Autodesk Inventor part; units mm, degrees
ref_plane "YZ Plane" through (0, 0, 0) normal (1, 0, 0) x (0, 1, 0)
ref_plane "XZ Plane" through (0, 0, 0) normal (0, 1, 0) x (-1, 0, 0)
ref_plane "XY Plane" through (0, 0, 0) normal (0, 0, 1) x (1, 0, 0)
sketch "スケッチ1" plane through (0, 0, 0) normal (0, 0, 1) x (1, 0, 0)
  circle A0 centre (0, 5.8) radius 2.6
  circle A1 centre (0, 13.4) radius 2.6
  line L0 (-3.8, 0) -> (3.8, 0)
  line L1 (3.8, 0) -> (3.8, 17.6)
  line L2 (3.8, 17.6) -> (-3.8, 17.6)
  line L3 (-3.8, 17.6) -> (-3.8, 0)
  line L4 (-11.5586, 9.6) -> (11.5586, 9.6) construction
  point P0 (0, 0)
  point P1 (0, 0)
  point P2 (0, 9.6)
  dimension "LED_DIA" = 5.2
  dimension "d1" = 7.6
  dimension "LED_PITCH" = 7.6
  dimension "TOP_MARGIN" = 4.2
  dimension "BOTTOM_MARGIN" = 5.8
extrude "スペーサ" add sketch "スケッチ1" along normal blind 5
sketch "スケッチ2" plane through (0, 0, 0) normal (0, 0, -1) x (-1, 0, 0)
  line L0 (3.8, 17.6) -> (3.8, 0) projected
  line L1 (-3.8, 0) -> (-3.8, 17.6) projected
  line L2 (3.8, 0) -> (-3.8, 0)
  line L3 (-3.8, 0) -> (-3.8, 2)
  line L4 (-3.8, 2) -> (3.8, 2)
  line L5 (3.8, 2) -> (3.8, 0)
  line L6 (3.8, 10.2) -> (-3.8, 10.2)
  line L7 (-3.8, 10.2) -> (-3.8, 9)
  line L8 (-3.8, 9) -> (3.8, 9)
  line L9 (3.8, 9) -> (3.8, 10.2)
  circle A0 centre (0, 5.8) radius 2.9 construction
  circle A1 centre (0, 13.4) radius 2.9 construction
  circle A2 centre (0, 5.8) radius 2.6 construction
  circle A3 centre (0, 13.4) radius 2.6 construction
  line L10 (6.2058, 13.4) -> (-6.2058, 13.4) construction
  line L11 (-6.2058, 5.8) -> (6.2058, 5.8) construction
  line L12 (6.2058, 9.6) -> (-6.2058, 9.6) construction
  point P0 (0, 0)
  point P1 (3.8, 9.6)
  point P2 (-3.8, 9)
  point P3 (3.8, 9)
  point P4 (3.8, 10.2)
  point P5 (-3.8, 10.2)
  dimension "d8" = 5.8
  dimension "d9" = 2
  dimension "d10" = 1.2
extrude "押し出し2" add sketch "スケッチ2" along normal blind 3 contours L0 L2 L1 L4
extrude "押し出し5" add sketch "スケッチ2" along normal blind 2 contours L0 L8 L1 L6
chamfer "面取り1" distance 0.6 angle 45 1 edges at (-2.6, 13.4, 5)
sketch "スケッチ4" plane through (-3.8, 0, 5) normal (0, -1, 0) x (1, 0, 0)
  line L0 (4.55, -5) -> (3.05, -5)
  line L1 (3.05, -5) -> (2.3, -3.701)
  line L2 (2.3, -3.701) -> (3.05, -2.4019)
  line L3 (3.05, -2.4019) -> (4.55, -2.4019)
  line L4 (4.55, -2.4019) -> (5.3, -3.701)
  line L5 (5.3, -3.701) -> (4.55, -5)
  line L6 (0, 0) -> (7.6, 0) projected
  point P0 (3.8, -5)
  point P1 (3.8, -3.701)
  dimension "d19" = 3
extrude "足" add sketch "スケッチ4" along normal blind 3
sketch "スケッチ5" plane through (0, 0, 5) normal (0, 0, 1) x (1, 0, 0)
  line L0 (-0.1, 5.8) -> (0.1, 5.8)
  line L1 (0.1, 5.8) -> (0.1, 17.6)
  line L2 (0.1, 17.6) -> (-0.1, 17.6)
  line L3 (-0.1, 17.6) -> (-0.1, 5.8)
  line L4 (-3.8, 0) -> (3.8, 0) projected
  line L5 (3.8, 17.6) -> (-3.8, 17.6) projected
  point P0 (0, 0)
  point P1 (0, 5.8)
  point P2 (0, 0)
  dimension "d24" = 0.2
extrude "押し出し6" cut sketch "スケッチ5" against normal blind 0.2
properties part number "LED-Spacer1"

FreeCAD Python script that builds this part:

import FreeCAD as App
import Part
import Sketcher

V = App.Vector
Q = App.Units.Quantity


def edges_at(feature, points):
    """Names of the edges that pass closest to the given points."""
    edges = feature.Shape.Edges
    near = lambda p: min(range(len(edges)), key=lambda i: edges[i].distToShape(Part.Vertex(*p))[0])
    return sorted({f"Edge{near(p) + 1}" for p in points})


def add_polygon(sketch, points):
    """Adds a closed chain of lines whose ends are joined by coincident constraints."""
    first, n = sketch.GeometryCount, len(points)
    for a, b in zip(points, points[1:] + points[:1]):
        sketch.addGeometry(Part.LineSegment(App.Vector(*a, 0), App.Vector(*b, 0)), False)
    for i in range(n):
        sketch.addConstraint(Sketcher.Constraint("Coincident", first + i, 2, first + (i + 1) % n, 1))

doc = App.newDocument("Part")
body = doc.addObject("PartDesign::Body", "Body")

# Sketch on XY plane
sketch1 = body.newObject("Sketcher::SketchObject", "Sketch")
sketch1.AttachmentSupport = (doc.getObject("XY_Plane"), [""])
sketch1.MapMode = "FlatFace"
add_polygon(sketch1, [(-3.8, 17.6), (-3.8, 0), (3.8, 0), (3.8, 17.6)])  # lines 0-3
sketch1.addGeometry(Part.Circle(V(0, 5.8, 0), V(0, 0, 1), 2.6), False)  # 4
sketch1.addGeometry(Part.Circle(V(0, 13.4, 0), V(0, 0, 1), 2.6), False)  # 5
sketch1.addConstraint([
    Sketcher.Constraint("Vertical", 0),
    Sketcher.Constraint("Horizontal", 1),
    Sketcher.Constraint("Vertical", 2),
    Sketcher.Constraint("Horizontal", 3),
    Sketcher.Constraint("Equal", 4, 5),
    Sketcher.Constraint("Symmetric", 0, 2, 1, 2, -1, 1),
    Sketcher.Constraint("PointOnObject", 4, 3, -2),
    Sketcher.Constraint("PointOnObject", 5, 3, -2),
    Sketcher.Constraint("Diameter", 4, 5.2),
    Sketcher.Constraint("DistanceX", 1, 1, 1, 2, 7.6),
    Sketcher.Constraint("DistanceY", -1, 1, 4, 3, 5.8),
    Sketcher.Constraint("DistanceY", 4, 3, 5, 3, 7.6),
    Sketcher.Constraint("DistanceY", 5, 3, 2, 2, 4.2),
])
pad1 = body.newObject("PartDesign::Pad", "Pad")
pad1.Profile = sketch1
pad1.Length = 5

# Sketch on XY plane
sketch2 = body.newObject("Sketcher::SketchObject", "Sketch001")
sketch2.AttachmentSupport = (doc.getObject("XY_Plane"), [""])
sketch2.MapMode = "FlatFace"
add_polygon(sketch2, [(-3.8, 0), (-3.8, 2), (3.8, 2), (3.8, 0)])  # lines 0-3
sketch2.addConstraint([
    Sketcher.Constraint("Vertical", 0),
    Sketcher.Constraint("Horizontal", 1),
    Sketcher.Constraint("Vertical", 2),
    Sketcher.Constraint("Horizontal", 3),
    Sketcher.Constraint("Symmetric", 2, 2, 3, 2, -1, 1),
    Sketcher.Constraint("DistanceY", 0, 1, 0, 2, 2.0),
    Sketcher.Constraint("DistanceX", 1, 1, 1, 2, 7.6),
])
pad2 = body.newObject("PartDesign::Pad", "Pad001")
pad2.Profile = sketch2
pad2.Length = 3
pad2.Reversed = True

# Sketch on XY plane
sketch3 = body.newObject("Sketcher::SketchObject", "Sketch002")
sketch3.AttachmentSupport = (doc.getObject("XY_Plane"), [""])
sketch3.MapMode = "FlatFace"
add_polygon(sketch3, [(-3.8, 9), (-3.8, 10.2), (3.8, 10.2), (3.8, 9)])  # lines 0-3
sketch3.addConstraint([
    Sketcher.Constraint("Vertical", 0),
    Sketcher.Constraint("Horizontal", 1),
    Sketcher.Constraint("Vertical", 2),
    Sketcher.Constraint("Horizontal", 3),
    Sketcher.Constraint("DistanceY", 0, 1, 0, 2, 1.2),
    Sketcher.Constraint("DistanceX", 1, 1, 1, 2, 7.6),
    Sketcher.Constraint("DistanceY", -1, 1, 2, 2, 9.0),
    Sketcher.Constraint("DistanceX", 0, 2, -1, 1, 3.8),
])
pad3 = body.newObject("PartDesign::Pad", "Pad002")
pad3.Profile = sketch3
pad3.Length = 2
pad3.Reversed = True
doc.recompute()

chamfer = body.newObject("PartDesign::Chamfer", "Chamfer")
chamfer.Base = (pad3, edges_at(pad3, [(-2.6, 13.4, 5)]))
chamfer.Size = 0.6

# Sketch on XZ plane
sketch4 = body.newObject("Sketcher::SketchObject", "Sketch003")
sketch4.AttachmentSupport = (doc.getObject("XZ_Plane"), [""])
sketch4.MapMode = "FlatFace"
add_polygon(sketch4, [(-0.8, 0), (0.8, 0), (1.5, 1.3), (0.8, 2.6), (-0.8, 2.6), (-1.5, 1.3)])  # lines 0-5
sketch4.addConstraint([
    Sketcher.Constraint("Horizontal", 0),
    Sketcher.Constraint("Horizontal", 3),
    Sketcher.Constraint("Symmetric", 0, 2, 5, 2, -1, 1),
    Sketcher.Constraint("Symmetric", 1, 2, 4, 2, -2),
    Sketcher.Constraint("Parallel", 1, 4),
    Sketcher.Constraint("Parallel", 2, 5),
    Sketcher.Constraint("Vertical", 0, 2, 2, 2),
    Sketcher.Constraint("DistanceX", 4, 2, 1, 2, 3.0),
    Sketcher.Constraint("Angle", 1, Q("59.9993 deg")),
    Sketcher.Constraint("DistanceX", 0, 1, 0, 2, 1.5),
])
pad4 = body.newObject("PartDesign::Pad", "Pad003")
pad4.Profile = sketch4
pad4.Length = 3

# Sketch on XY plane
sketch5 = body.newObject("Sketcher::SketchObject", "Sketch004")
sketch5.AttachmentSupport = (doc.getObject("XY_Plane"), [""])
sketch5.MapMode = "FlatFace"
sketch5.AttachmentOffset = App.Placement(V(0, 0, 5), App.Rotation())
add_polygon(sketch5, [(-0.1, 17.6), (-0.1, 5.8), (0.1, 5.8), (0.1, 17.6)])  # lines 0-3
sketch5.addConstraint([
    Sketcher.Constraint("Vertical", 0),
    Sketcher.Constraint("Horizontal", 1),
    Sketcher.Constraint("Vertical", 2),
    Sketcher.Constraint("Horizontal", 3),
    Sketcher.Constraint("DistanceX", 1, 1, 1, 2, 0.2),
    Sketcher.Constraint("DistanceY", 0, 2, 0, 1, 11.8),
    Sketcher.Constraint("DistanceX", 0, 2, -1, 1, 0.1),
    Sketcher.Constraint("DistanceY", -1, 1, 0, 2, 5.8),
])
pocket1 = body.newObject("PartDesign::Pocket", "Pocket")
pocket1.Profile = sketch5
pocket1.Length = 0.2

doc.recompute()
